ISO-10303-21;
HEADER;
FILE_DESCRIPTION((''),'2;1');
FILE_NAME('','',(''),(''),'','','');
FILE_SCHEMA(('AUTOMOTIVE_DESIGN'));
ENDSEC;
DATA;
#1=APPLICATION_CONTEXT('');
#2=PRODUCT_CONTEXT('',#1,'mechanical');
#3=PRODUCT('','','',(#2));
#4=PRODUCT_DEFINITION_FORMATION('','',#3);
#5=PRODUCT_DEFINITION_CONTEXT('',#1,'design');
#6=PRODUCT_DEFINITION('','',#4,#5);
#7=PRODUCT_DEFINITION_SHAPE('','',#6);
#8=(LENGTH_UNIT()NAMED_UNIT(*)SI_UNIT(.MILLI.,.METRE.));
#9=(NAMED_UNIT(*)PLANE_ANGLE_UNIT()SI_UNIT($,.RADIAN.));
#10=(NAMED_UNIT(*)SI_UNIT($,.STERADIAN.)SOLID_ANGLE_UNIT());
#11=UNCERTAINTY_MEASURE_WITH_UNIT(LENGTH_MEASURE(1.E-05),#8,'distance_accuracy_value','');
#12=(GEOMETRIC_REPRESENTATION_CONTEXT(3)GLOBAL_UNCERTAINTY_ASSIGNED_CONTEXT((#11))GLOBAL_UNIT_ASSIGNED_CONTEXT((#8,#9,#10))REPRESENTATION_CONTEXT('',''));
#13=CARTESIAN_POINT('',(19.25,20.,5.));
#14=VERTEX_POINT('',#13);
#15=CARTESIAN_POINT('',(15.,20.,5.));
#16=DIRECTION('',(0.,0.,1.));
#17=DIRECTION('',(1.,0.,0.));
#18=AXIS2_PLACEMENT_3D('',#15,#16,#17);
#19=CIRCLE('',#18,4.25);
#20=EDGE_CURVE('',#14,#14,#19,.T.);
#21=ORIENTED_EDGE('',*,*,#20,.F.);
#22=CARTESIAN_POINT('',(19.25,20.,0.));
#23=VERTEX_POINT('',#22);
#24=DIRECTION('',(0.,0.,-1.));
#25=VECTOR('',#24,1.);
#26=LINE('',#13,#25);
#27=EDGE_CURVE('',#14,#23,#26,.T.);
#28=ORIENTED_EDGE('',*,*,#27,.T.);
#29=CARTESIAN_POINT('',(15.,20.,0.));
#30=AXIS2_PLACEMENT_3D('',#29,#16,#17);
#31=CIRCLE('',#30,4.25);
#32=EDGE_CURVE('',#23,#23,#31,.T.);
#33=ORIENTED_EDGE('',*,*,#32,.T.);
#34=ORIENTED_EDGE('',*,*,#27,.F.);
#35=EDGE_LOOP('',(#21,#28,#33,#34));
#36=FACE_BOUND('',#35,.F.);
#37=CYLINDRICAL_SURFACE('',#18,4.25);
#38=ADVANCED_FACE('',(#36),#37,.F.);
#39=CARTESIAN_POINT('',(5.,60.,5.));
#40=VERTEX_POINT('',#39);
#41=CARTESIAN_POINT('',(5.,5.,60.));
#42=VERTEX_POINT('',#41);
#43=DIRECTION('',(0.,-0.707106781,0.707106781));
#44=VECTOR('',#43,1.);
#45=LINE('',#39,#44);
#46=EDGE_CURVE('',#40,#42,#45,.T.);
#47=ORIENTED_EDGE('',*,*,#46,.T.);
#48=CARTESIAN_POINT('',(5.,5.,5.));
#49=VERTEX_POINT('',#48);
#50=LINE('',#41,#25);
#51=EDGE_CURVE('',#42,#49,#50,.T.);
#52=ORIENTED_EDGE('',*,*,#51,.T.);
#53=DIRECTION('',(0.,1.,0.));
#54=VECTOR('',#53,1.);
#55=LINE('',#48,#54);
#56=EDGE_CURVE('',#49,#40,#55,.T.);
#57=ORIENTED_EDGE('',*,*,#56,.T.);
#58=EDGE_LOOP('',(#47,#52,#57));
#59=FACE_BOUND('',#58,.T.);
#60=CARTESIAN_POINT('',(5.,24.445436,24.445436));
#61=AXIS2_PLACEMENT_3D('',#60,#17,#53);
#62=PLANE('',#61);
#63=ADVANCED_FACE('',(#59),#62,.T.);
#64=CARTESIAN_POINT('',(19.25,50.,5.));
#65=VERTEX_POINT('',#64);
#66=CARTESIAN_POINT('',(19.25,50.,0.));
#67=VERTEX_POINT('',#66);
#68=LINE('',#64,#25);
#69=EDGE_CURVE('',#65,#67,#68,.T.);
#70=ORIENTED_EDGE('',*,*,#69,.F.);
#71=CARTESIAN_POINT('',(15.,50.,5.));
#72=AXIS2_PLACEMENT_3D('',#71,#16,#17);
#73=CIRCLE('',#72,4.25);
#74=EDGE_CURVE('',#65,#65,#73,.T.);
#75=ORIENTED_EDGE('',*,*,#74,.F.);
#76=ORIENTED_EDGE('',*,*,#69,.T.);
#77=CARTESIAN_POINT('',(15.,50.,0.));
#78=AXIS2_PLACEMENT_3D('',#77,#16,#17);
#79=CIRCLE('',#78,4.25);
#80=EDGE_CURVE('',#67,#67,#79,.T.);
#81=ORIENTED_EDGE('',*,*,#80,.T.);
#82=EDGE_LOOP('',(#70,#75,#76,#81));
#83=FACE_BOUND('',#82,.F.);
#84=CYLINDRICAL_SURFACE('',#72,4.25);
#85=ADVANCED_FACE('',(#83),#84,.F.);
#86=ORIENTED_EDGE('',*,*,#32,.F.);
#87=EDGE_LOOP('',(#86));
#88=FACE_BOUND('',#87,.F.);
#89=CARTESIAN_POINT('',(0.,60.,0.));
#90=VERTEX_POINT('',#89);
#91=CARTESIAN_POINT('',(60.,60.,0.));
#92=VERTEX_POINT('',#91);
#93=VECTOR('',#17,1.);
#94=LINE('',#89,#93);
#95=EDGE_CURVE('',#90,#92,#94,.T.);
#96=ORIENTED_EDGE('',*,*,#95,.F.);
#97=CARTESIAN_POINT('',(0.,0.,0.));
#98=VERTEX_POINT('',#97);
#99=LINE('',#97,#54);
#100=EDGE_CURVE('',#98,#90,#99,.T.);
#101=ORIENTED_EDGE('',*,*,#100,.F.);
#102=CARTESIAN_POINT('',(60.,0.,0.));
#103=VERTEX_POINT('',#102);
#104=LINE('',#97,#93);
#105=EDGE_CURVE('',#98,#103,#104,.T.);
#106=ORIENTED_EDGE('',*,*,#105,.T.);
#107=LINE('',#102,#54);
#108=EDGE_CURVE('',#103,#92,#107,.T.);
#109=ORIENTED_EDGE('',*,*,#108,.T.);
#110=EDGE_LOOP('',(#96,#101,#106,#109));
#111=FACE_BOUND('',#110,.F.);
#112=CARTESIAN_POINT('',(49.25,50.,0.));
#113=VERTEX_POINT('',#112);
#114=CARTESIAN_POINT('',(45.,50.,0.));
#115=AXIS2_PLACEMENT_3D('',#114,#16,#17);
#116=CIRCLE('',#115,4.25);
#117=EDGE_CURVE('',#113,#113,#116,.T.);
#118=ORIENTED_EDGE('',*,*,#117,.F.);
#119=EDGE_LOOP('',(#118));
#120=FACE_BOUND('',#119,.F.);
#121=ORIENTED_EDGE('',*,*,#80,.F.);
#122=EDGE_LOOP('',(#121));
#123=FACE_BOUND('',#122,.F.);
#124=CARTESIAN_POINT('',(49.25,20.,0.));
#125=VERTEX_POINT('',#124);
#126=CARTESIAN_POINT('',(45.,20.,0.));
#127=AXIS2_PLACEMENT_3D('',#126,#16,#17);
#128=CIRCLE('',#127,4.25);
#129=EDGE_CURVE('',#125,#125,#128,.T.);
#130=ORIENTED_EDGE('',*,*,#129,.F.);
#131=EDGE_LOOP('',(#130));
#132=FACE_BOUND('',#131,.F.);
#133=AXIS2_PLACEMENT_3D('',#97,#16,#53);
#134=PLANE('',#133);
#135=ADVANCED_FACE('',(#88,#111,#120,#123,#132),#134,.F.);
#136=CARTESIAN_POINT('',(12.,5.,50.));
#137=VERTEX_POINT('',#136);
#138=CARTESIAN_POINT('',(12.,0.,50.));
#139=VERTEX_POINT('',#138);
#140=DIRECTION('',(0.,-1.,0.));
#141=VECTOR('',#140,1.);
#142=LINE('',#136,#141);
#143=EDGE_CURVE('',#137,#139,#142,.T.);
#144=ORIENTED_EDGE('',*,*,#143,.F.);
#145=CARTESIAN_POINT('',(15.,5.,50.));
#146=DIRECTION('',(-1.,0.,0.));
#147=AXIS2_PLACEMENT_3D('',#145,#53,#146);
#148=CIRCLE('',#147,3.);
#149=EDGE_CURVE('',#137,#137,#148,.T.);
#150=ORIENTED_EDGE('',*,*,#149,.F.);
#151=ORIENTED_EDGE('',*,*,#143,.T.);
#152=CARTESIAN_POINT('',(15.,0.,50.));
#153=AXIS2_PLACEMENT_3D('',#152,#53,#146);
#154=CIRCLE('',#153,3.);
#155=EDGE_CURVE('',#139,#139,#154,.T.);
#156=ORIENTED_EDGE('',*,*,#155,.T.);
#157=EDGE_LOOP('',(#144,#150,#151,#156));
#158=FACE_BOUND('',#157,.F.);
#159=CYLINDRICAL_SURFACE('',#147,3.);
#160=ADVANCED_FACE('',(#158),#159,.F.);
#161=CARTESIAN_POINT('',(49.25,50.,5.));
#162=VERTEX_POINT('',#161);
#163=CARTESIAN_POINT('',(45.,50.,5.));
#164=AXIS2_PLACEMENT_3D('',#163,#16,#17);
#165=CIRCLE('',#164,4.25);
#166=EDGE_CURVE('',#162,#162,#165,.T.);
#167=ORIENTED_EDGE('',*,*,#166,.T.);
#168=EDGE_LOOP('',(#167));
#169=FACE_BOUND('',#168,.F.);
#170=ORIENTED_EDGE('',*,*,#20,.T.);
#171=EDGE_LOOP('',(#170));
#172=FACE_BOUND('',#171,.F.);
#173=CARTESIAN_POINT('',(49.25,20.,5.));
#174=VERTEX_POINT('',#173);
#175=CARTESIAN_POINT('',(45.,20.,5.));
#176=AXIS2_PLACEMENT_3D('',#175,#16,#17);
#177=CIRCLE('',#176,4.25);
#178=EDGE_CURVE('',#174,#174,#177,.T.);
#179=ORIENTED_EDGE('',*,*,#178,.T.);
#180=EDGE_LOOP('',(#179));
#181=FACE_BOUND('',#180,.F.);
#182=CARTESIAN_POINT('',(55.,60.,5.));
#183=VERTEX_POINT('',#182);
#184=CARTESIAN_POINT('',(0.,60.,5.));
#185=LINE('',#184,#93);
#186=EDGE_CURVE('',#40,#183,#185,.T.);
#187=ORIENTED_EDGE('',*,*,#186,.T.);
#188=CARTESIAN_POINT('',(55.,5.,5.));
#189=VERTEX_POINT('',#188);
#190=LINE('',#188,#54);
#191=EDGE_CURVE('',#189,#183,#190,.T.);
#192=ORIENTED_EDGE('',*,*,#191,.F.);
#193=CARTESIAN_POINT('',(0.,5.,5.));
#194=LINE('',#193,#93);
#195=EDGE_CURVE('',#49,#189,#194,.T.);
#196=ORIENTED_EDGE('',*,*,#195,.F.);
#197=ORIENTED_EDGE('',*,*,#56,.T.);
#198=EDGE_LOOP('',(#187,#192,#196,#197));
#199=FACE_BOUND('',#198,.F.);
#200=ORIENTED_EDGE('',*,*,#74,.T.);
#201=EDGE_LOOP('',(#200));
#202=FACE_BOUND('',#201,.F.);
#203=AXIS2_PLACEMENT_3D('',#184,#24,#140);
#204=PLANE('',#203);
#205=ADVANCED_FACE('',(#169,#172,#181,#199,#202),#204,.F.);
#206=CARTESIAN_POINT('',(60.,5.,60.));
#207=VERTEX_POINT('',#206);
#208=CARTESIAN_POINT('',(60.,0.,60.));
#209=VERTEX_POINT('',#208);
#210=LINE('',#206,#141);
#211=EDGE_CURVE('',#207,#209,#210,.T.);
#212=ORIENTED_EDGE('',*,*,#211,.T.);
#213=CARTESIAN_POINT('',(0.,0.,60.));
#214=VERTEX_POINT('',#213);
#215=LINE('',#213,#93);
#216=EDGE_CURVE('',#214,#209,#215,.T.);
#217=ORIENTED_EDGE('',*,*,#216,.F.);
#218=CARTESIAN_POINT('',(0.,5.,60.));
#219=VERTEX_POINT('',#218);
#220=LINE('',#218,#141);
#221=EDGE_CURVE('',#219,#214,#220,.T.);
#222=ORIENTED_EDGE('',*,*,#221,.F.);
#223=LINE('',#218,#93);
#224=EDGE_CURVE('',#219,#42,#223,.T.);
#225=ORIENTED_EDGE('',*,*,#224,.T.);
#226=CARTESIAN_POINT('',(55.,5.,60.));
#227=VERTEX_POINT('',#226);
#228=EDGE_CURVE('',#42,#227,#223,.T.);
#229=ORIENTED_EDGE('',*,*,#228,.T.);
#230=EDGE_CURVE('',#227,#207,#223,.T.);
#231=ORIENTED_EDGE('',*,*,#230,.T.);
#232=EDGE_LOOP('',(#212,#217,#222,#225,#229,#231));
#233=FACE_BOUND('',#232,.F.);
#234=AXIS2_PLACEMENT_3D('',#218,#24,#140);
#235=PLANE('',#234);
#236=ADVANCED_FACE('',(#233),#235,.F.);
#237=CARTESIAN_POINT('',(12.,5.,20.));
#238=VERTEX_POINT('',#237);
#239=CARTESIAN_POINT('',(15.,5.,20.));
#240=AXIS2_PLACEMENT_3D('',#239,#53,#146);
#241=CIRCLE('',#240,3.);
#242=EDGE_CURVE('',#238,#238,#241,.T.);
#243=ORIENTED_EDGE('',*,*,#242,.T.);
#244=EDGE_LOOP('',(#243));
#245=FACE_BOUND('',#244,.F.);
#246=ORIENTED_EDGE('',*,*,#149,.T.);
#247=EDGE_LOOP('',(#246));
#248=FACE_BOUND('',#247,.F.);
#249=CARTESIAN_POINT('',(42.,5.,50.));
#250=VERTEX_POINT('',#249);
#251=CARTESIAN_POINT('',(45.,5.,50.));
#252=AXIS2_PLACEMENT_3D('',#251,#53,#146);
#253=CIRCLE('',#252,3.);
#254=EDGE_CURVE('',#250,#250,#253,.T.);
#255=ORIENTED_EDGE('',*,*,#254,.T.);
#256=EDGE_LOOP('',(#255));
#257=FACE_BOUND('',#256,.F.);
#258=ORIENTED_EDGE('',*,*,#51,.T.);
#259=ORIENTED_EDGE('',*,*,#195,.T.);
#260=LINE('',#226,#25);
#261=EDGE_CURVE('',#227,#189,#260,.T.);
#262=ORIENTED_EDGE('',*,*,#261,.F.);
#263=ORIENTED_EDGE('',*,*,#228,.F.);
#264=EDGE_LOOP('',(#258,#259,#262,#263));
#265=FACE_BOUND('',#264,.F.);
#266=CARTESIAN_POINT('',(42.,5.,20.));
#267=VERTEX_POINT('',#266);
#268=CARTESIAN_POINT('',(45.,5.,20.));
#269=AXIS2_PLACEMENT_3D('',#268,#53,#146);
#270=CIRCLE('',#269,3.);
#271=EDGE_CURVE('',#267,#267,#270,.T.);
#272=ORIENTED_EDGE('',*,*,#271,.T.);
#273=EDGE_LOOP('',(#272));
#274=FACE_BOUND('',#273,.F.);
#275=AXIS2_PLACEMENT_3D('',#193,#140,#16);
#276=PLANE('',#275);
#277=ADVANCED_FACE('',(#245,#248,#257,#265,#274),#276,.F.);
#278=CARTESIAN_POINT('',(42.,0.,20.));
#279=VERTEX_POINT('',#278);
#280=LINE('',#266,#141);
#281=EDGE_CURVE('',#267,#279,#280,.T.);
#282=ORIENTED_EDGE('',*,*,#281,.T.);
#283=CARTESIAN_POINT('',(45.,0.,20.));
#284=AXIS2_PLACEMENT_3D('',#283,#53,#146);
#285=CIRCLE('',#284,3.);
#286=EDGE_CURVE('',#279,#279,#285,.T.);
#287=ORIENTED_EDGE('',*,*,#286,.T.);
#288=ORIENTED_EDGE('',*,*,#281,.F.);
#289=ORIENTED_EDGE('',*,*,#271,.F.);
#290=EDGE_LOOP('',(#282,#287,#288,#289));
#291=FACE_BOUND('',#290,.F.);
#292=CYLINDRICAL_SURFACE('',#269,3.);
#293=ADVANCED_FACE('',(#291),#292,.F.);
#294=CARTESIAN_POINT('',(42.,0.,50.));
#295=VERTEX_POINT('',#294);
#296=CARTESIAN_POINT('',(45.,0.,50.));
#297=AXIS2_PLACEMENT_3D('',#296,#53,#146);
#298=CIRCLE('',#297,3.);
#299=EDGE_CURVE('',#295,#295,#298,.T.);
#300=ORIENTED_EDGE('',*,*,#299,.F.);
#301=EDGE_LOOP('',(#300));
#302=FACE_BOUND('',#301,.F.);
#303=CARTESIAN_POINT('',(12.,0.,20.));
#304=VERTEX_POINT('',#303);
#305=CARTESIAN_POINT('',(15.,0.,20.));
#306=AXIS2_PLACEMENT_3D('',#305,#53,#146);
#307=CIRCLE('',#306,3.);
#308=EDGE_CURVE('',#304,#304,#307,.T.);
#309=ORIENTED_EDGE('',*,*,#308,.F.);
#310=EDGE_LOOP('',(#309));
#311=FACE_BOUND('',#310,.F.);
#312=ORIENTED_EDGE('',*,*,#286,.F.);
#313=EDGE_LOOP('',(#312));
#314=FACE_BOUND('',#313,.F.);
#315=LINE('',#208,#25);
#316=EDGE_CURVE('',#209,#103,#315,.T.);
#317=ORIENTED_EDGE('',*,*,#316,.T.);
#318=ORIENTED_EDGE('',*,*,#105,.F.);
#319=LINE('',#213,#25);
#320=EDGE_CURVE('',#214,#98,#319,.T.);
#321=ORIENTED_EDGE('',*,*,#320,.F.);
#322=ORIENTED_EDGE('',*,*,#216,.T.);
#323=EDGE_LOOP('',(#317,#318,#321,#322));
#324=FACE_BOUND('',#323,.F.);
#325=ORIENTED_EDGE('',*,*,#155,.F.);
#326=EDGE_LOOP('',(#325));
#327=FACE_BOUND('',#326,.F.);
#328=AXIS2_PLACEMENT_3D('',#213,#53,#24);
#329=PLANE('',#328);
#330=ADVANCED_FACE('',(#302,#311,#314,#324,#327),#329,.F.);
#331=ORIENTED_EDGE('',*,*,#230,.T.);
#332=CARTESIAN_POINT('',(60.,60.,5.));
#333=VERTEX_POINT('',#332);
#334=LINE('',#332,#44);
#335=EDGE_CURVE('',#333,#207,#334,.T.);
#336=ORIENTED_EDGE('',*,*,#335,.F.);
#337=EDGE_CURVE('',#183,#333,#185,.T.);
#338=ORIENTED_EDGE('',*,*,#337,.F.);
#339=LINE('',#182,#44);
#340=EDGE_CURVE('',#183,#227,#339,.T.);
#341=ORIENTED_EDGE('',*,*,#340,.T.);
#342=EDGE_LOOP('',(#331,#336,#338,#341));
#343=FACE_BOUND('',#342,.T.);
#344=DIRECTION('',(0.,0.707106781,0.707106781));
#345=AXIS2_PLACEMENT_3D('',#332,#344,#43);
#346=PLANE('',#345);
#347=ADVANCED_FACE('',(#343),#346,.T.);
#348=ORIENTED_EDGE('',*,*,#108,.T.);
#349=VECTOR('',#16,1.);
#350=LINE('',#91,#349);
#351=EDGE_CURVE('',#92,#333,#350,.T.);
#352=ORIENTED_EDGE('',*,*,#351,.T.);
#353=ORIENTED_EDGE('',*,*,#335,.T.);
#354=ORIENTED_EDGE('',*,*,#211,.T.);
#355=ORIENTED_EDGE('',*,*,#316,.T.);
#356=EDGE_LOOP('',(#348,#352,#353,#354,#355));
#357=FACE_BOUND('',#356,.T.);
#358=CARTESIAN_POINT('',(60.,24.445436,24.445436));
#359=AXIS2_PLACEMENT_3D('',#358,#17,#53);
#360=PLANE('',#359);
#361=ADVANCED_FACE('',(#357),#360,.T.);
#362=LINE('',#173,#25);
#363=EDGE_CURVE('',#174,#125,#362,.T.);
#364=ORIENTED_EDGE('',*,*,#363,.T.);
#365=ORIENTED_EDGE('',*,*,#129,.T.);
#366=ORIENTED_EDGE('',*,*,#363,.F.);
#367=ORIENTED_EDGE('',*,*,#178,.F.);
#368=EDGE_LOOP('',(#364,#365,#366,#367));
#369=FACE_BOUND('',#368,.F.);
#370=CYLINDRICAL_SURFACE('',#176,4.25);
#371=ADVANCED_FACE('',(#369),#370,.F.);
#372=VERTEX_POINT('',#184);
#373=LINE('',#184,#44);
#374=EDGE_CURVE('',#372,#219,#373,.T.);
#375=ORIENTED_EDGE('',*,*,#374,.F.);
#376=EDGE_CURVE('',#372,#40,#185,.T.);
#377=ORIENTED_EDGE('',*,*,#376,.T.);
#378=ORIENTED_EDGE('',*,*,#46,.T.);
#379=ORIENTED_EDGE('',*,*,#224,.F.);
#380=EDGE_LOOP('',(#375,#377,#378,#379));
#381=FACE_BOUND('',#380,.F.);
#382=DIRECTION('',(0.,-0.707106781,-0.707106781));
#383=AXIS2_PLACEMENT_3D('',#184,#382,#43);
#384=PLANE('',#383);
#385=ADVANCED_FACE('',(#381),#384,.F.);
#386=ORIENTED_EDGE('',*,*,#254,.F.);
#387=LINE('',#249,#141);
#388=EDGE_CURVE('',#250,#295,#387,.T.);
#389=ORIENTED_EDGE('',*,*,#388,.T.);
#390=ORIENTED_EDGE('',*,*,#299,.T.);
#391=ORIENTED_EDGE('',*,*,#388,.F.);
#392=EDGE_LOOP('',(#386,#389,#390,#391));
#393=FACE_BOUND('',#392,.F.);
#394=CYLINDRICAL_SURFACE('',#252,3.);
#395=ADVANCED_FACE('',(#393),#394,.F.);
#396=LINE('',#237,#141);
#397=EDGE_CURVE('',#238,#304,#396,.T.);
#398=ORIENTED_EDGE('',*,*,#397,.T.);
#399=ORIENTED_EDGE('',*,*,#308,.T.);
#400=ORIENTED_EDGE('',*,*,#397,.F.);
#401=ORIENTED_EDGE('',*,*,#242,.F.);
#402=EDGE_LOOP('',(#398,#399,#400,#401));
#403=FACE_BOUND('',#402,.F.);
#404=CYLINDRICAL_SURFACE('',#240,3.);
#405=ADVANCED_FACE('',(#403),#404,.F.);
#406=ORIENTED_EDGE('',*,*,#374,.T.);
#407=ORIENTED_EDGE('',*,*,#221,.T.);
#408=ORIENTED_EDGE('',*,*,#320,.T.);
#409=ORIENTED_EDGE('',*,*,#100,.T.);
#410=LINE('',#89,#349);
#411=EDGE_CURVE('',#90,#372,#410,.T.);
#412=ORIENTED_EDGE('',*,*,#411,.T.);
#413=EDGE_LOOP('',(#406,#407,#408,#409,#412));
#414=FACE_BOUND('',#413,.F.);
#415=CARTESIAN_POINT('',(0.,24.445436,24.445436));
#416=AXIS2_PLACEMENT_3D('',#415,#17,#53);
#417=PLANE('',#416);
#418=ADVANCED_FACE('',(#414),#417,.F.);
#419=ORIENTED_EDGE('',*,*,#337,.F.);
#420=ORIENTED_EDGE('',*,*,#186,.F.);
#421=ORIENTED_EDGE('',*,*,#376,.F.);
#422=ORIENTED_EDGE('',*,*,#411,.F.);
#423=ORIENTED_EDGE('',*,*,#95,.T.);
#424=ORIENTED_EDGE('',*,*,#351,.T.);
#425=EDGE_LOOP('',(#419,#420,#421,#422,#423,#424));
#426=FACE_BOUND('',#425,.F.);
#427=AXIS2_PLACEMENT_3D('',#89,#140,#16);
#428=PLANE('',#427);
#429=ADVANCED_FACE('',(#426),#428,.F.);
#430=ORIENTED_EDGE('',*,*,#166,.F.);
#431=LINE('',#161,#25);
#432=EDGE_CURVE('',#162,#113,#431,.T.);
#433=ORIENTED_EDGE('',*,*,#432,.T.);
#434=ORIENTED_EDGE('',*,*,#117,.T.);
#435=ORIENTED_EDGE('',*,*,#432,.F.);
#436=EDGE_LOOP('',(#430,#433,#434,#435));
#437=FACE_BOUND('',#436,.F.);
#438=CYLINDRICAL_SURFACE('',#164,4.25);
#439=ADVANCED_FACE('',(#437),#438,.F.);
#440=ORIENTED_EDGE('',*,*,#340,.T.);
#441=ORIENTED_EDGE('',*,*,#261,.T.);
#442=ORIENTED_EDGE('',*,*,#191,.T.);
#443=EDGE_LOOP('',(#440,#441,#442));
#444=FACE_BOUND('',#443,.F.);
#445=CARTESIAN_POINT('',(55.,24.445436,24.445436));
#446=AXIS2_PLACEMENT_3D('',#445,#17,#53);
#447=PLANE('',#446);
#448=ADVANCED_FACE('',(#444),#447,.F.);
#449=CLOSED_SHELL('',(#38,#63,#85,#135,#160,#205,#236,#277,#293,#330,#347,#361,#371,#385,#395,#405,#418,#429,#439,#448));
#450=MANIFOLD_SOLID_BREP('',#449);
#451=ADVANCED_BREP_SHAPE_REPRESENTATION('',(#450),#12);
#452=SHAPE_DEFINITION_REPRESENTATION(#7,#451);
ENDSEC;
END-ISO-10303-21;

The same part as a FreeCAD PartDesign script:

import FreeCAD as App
import Part
import Sketcher

V = App.Vector


def add_polygon(sketch, points):
    """Adds a closed chain of lines whose ends are joined by coincident constraints."""
    first, n = sketch.GeometryCount, len(points)
    for a, b in zip(points, points[1:] + points[:1]):
        sketch.addGeometry(Part.LineSegment(App.Vector(*a, 0), App.Vector(*b, 0)), False)
    for i in range(n):
        sketch.addConstraint(Sketcher.Constraint("Coincident", first + i, 2, first + (i + 1) % n, 1))

doc = App.newDocument("Part")
body = doc.addObject("PartDesign::Body", "Body")

sketch1 = doc.addObject("Sketcher::SketchObject", "Sketch")
body.addObject(sketch1)
sketch1.AttachmentSupport = (doc.YZ_Plane, [""])
sketch1.MapMode = "FlatFace"
add_polygon(sketch1, [(5, 60), (0, 60), (0, 0), (60, 0), (60, 5), (5, 5)])
sketch1.addConstraint([
    Sketcher.Constraint("Horizontal", 0),
    Sketcher.Constraint("Vertical", 1),
    Sketcher.Constraint("Horizontal", 2),
    Sketcher.Constraint("Vertical", 3),
    Sketcher.Constraint("Horizontal", 4),
    Sketcher.Constraint("Vertical", 5),
    Sketcher.Constraint("Coincident", 1, 2, -1, 1),
    Sketcher.Constraint("Equal", 2, 1),
    Sketcher.Constraint("Equal", 0, 3),
    Sketcher.Constraint("DistanceX", 0, 2, 0, 1, 5.0),
    Sketcher.Constraint("DistanceX", 2, 1, 2, 2, 60.0),
])
pad1 = doc.addObject("PartDesign::Pad", "Pad")
body.addObject(pad1)
pad1.Profile = sketch1
pad1.Length = 60

sketch2 = doc.addObject("Sketcher::SketchObject", "Sketch001")
body.addObject(sketch2)
sketch2.AttachmentSupport = (doc.YZ_Plane, [""])
sketch2.MapMode = "FlatFace"
add_polygon(sketch2, [(60, 5), (5, 60), (5, 5)])
sketch2.addConstraint([
    Sketcher.Constraint("Vertical", 1),
    Sketcher.Constraint("Horizontal", 2),
    Sketcher.Constraint("Equal", 2, 1),
    Sketcher.Constraint("DistanceX", 2, 1, 2, 2, 55.0),
    Sketcher.Constraint("DistanceX", -1, 1, 0, 2, 5.0),
    Sketcher.Constraint("DistanceY", -1, 1, 0, 2, 60.0),
])
pad2 = doc.addObject("PartDesign::Pad", "Pad001")
body.addObject(pad2)
pad2.Profile = sketch2
pad2.Length = 5

sketch3 = doc.addObject("Sketcher::SketchObject", "Sketch002")
body.addObject(sketch3)
sketch3.AttachmentSupport = (doc.YZ_Plane, [""])
sketch3.MapMode = "FlatFace"
sketch3.AttachmentOffset = App.Placement(V(0, 0, 60), App.Rotation())
add_polygon(sketch3, [(60, 5), (5, 60), (5, 5)])
sketch3.addConstraint([
    Sketcher.Constraint("Vertical", 1),
    Sketcher.Constraint("Horizontal", 2),
    Sketcher.Constraint("Equal", 2, 1),
    Sketcher.Constraint("DistanceX", 2, 1, 2, 2, 55.0),
    Sketcher.Constraint("DistanceX", -1, 1, 0, 2, 5.0),
    Sketcher.Constraint("DistanceY", -1, 1, 0, 2, 60.0),
])
pad3 = doc.addObject("PartDesign::Pad", "Pad002")
body.addObject(pad3)
pad3.Profile = sketch3
pad3.Length = 5
pad3.Reversed = True

sketch4 = doc.addObject("Sketcher::SketchObject", "Sketch003")
body.addObject(sketch4)
sketch4.AttachmentSupport = (doc.XZ_Plane, [""])
sketch4.MapMode = "FlatFace"
sketch4.AttachmentOffset = App.Placement(V(0, 0, -5), App.Rotation())
sketch4.addGeometry([
    Part.Circle(V(15, 50, 0), V(0, 0, 1), 3),
    Part.Circle(V(45, 50, 0), V(0, 0, 1), 3),
    Part.Circle(V(15, 20, 0), V(0, 0, 1), 3),
    Part.Circle(V(45, 20, 0), V(0, 0, 1), 3),
], False)
sketch4.addConstraint([
    Sketcher.Constraint("Equal", 0, 1),
    Sketcher.Constraint("Equal", 1, 2),
    Sketcher.Constraint("Equal", 2, 3),
    Sketcher.Constraint("Horizontal", 0, 3, 1, 3),
    Sketcher.Constraint("Horizontal", 2, 3, 3, 3),
    Sketcher.Constraint("Vertical", 0, 3, 2, 3),
    Sketcher.Constraint("Vertical", 1, 3, 3, 3),
    Sketcher.Constraint("Diameter", 0, 6.0),
    Sketcher.Constraint("DistanceX", -1, 1, 0, 3, 15.0),
    Sketcher.Constraint("DistanceY", -1, 1, 0, 3, 50.0),
    Sketcher.Constraint("DistanceX", -1, 1, 1, 3, 45.0),
    Sketcher.Constraint("DistanceY", -1, 1, 2, 3, 20.0),
])
pocket1 = doc.addObject("PartDesign::Pocket", "Pocket")
body.addObject(pocket1)
pocket1.Profile = sketch4
pocket1.Type = "ThroughAll"
pocket1.Reversed = True

sketch5 = doc.addObject("Sketcher::SketchObject", "Sketch004")
body.addObject(sketch5)
sketch5.AttachmentSupport = (doc.XY_Plane, [""])
sketch5.MapMode = "FlatFace"
sketch5.AttachmentOffset = App.Placement(V(0, 0, 5), App.Rotation())
sketch5.addGeometry([
    Part.Circle(V(45, 50, 0), V(0, 0, 1), 4.25),
    Part.Circle(V(15, 50, 0), V(0, 0, 1), 4.25),
    Part.Circle(V(15, 20, 0), V(0, 0, 1), 4.25),
    Part.Circle(V(45, 20, 0), V(0, 0, 1), 4.25),
], False)
sketch5.addConstraint([
    Sketcher.Constraint("Equal", 0, 1),
    Sketcher.Constraint("Equal", 1, 2),
    Sketcher.Constraint("Equal", 2, 3),
    Sketcher.Constraint("Horizontal", 0, 3, 1, 3),
    Sketcher.Constraint("Horizontal", 2, 3, 3, 3),
    Sketcher.Constraint("Vertical", 1, 3, 2, 3),
    Sketcher.Constraint("Vertical", 0, 3, 3, 3),
    Sketcher.Constraint("Diameter", 0, 8.5),
    Sketcher.Constraint("DistanceX", -1, 1, 0, 3, 45.0),
    Sketcher.Constraint("DistanceY", -1, 1, 0, 3, 50.0),
    Sketcher.Constraint("DistanceX", -1, 1, 1, 3, 15.0),
    Sketcher.Constraint("DistanceY", -1, 1, 2, 3, 20.0),
])
pocket2 = doc.addObject("PartDesign::Pocket", "Pocket001")
body.addObject(pocket2)
pocket2.Profile = sketch5
pocket2.Type = "ThroughAll"

doc.recompute()
